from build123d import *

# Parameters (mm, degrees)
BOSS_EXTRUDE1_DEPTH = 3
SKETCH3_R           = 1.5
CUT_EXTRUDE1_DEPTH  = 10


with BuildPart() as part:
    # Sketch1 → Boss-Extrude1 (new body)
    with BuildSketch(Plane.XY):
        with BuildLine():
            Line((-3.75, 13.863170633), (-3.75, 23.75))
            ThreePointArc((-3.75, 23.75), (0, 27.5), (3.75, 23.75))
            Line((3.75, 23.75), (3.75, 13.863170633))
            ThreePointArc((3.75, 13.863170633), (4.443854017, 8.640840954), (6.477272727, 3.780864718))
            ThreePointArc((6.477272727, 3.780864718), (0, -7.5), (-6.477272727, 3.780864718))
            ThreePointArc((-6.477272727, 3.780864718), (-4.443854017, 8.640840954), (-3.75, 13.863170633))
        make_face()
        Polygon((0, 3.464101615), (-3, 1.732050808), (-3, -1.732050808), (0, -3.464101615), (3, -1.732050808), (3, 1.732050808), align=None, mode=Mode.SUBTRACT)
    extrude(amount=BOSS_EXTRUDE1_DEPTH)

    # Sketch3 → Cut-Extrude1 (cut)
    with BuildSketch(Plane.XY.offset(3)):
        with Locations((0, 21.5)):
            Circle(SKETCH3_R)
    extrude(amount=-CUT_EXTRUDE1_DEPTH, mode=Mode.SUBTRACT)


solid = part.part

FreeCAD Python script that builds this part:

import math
import FreeCAD as App
import Part
import Sketcher

V = App.Vector
Q = App.Units.Quantity


def add_polygon(sketch, points):
    """Adds a closed chain of lines whose ends are joined by coincident constraints."""
    first, n = sketch.GeometryCount, len(points)
    for a, b in zip(points, points[1:] + points[:1]):
        sketch.addGeometry(Part.LineSegment(App.Vector(*a, 0), App.Vector(*b, 0)), False)
    for i in range(n):
        sketch.addConstraint(Sketcher.Constraint("Coincident", first + i, 2, first + (i + 1) % n, 1))

doc = App.newDocument("Part")
body = doc.addObject("PartDesign::Body", "Body")

# Sketch on XY plane
sketch1 = body.newObject("Sketcher::SketchObject", "Sketch")
sketch1.AttachmentSupport = (doc.getObject("XY_Plane"), [""])
sketch1.MapMode = "FlatFace"
sketch1.addGeometry(Part.LineSegment(V(-3.75, 23.75, 0), V(-3.75, 13.863171, 0)), False)  # 0
sketch1.addGeometry(Part.ArcOfCircle(Part.Circle(V(-23.75, 13.863171, 0), V(0, 0, 1), 20), math.radians(-30.272641), math.radians(0)), False)  # 1
sketch1.addGeometry(Part.ArcOfCircle(Part.Circle(V(0, 0, 0), V(0, 0, 1), 7.5), math.radians(149.727359), math.radians(390.272641)), False)  # 2
sketch1.addGeometry(Part.ArcOfCircle(Part.Circle(V(23.75, 13.863171, 0), V(0, 0, 1), 20), math.radians(-180), math.radians(-149.727359)), False)  # 3
sketch1.addGeometry(Part.LineSegment(V(3.75, 13.863171, 0), V(3.75, 23.75, 0)), False)  # 4
sketch1.addGeometry(Part.ArcOfCircle(Part.Circle(V(0, 23.75, 0), V(0, 0, 1), 3.75), math.radians(0), math.radians(180)), False)  # 5
add_polygon(sketch1, [(0, 3.464102), (3, 1.732051), (3, -1.732051), (0, -3.464102), (-3, -1.732051), (-3, 1.732051)])  # lines 6-11
sketch1.addConstraint([
    Sketcher.Constraint("Tangent", 0, 2, 1, 2),
    Sketcher.Constraint("Tangent", 1, 1, 2, 1),
    Sketcher.Constraint("Tangent", 2, 2, 3, 2),
    Sketcher.Constraint("Tangent", 3, 1, 4, 1),
    Sketcher.Constraint("Tangent", 4, 2, 5, 1),
    Sketcher.Constraint("Tangent", 5, 2, 0, 1),
    Sketcher.Constraint("Vertical", 0),
    Sketcher.Constraint("Vertical", 4),
    Sketcher.Constraint("Vertical", 7),
    Sketcher.Constraint("Vertical", 10),
    Sketcher.Constraint("Coincident", 2, 3, -1, 1),
    Sketcher.Constraint("Equal", 1, 3),
    Sketcher.Constraint("Symmetric", 6, 2, 9, 2, -1, 1),
    Sketcher.Constraint("Symmetric", 8, 2, 11, 2, -1, 1),
    Sketcher.Constraint("PointOnObject", 5, 3, -2),
    Sketcher.Constraint("PointOnObject", 8, 2, -2),
    Sketcher.Constraint("Parallel", 8, 11),
    Sketcher.Constraint("Horizontal", 7, 2, 9, 2),
    Sketcher.Constraint("Radius", 1, Q("20 mm")),
    Sketcher.Constraint("Radius", 2, Q("7.5 mm")),
    Sketcher.Constraint("Angle", 6, Q("-30 deg")),
    Sketcher.Constraint("Radius", 5, Q("3.75 mm")),
    Sketcher.Constraint("DistanceX", -1, 1, 6, 2, Q("3 mm")),
    Sketcher.Constraint("DistanceY", -1, 1, 5, 3, Q("23.75 mm")),
    Sketcher.Constraint("DistanceY", 7, 2, 7, 1, Q("3.464102 mm")),
])
pad1 = body.newObject("PartDesign::Pad", "Pad")
pad1.Profile = sketch1
pad1.Length = 3

# Sketch on XY plane
sketch2 = body.newObject("Sketcher::SketchObject", "Sketch001")
sketch2.AttachmentSupport = (doc.getObject("XY_Plane"), [""])
sketch2.MapMode = "FlatFace"
sketch2.AttachmentOffset = App.Placement(V(0, 0, 3), App.Rotation())
sketch2.addGeometry(Part.Circle(V(0, 21.5, 0), V(0, 0, 1), 1.5), False)
sketch2.addConstraint([
    Sketcher.Constraint("PointOnObject", 0, 3, -2),
    Sketcher.Constraint("Diameter", 0, Q("3 mm")),
    Sketcher.Constraint("DistanceY", -1, 1, 0, 3, Q("21.5 mm")),
])
pocket1 = body.newObject("PartDesign::Pocket", "Pocket")
pocket1.Profile = sketch2
pocket1.Length = 10

doc.recompute()
